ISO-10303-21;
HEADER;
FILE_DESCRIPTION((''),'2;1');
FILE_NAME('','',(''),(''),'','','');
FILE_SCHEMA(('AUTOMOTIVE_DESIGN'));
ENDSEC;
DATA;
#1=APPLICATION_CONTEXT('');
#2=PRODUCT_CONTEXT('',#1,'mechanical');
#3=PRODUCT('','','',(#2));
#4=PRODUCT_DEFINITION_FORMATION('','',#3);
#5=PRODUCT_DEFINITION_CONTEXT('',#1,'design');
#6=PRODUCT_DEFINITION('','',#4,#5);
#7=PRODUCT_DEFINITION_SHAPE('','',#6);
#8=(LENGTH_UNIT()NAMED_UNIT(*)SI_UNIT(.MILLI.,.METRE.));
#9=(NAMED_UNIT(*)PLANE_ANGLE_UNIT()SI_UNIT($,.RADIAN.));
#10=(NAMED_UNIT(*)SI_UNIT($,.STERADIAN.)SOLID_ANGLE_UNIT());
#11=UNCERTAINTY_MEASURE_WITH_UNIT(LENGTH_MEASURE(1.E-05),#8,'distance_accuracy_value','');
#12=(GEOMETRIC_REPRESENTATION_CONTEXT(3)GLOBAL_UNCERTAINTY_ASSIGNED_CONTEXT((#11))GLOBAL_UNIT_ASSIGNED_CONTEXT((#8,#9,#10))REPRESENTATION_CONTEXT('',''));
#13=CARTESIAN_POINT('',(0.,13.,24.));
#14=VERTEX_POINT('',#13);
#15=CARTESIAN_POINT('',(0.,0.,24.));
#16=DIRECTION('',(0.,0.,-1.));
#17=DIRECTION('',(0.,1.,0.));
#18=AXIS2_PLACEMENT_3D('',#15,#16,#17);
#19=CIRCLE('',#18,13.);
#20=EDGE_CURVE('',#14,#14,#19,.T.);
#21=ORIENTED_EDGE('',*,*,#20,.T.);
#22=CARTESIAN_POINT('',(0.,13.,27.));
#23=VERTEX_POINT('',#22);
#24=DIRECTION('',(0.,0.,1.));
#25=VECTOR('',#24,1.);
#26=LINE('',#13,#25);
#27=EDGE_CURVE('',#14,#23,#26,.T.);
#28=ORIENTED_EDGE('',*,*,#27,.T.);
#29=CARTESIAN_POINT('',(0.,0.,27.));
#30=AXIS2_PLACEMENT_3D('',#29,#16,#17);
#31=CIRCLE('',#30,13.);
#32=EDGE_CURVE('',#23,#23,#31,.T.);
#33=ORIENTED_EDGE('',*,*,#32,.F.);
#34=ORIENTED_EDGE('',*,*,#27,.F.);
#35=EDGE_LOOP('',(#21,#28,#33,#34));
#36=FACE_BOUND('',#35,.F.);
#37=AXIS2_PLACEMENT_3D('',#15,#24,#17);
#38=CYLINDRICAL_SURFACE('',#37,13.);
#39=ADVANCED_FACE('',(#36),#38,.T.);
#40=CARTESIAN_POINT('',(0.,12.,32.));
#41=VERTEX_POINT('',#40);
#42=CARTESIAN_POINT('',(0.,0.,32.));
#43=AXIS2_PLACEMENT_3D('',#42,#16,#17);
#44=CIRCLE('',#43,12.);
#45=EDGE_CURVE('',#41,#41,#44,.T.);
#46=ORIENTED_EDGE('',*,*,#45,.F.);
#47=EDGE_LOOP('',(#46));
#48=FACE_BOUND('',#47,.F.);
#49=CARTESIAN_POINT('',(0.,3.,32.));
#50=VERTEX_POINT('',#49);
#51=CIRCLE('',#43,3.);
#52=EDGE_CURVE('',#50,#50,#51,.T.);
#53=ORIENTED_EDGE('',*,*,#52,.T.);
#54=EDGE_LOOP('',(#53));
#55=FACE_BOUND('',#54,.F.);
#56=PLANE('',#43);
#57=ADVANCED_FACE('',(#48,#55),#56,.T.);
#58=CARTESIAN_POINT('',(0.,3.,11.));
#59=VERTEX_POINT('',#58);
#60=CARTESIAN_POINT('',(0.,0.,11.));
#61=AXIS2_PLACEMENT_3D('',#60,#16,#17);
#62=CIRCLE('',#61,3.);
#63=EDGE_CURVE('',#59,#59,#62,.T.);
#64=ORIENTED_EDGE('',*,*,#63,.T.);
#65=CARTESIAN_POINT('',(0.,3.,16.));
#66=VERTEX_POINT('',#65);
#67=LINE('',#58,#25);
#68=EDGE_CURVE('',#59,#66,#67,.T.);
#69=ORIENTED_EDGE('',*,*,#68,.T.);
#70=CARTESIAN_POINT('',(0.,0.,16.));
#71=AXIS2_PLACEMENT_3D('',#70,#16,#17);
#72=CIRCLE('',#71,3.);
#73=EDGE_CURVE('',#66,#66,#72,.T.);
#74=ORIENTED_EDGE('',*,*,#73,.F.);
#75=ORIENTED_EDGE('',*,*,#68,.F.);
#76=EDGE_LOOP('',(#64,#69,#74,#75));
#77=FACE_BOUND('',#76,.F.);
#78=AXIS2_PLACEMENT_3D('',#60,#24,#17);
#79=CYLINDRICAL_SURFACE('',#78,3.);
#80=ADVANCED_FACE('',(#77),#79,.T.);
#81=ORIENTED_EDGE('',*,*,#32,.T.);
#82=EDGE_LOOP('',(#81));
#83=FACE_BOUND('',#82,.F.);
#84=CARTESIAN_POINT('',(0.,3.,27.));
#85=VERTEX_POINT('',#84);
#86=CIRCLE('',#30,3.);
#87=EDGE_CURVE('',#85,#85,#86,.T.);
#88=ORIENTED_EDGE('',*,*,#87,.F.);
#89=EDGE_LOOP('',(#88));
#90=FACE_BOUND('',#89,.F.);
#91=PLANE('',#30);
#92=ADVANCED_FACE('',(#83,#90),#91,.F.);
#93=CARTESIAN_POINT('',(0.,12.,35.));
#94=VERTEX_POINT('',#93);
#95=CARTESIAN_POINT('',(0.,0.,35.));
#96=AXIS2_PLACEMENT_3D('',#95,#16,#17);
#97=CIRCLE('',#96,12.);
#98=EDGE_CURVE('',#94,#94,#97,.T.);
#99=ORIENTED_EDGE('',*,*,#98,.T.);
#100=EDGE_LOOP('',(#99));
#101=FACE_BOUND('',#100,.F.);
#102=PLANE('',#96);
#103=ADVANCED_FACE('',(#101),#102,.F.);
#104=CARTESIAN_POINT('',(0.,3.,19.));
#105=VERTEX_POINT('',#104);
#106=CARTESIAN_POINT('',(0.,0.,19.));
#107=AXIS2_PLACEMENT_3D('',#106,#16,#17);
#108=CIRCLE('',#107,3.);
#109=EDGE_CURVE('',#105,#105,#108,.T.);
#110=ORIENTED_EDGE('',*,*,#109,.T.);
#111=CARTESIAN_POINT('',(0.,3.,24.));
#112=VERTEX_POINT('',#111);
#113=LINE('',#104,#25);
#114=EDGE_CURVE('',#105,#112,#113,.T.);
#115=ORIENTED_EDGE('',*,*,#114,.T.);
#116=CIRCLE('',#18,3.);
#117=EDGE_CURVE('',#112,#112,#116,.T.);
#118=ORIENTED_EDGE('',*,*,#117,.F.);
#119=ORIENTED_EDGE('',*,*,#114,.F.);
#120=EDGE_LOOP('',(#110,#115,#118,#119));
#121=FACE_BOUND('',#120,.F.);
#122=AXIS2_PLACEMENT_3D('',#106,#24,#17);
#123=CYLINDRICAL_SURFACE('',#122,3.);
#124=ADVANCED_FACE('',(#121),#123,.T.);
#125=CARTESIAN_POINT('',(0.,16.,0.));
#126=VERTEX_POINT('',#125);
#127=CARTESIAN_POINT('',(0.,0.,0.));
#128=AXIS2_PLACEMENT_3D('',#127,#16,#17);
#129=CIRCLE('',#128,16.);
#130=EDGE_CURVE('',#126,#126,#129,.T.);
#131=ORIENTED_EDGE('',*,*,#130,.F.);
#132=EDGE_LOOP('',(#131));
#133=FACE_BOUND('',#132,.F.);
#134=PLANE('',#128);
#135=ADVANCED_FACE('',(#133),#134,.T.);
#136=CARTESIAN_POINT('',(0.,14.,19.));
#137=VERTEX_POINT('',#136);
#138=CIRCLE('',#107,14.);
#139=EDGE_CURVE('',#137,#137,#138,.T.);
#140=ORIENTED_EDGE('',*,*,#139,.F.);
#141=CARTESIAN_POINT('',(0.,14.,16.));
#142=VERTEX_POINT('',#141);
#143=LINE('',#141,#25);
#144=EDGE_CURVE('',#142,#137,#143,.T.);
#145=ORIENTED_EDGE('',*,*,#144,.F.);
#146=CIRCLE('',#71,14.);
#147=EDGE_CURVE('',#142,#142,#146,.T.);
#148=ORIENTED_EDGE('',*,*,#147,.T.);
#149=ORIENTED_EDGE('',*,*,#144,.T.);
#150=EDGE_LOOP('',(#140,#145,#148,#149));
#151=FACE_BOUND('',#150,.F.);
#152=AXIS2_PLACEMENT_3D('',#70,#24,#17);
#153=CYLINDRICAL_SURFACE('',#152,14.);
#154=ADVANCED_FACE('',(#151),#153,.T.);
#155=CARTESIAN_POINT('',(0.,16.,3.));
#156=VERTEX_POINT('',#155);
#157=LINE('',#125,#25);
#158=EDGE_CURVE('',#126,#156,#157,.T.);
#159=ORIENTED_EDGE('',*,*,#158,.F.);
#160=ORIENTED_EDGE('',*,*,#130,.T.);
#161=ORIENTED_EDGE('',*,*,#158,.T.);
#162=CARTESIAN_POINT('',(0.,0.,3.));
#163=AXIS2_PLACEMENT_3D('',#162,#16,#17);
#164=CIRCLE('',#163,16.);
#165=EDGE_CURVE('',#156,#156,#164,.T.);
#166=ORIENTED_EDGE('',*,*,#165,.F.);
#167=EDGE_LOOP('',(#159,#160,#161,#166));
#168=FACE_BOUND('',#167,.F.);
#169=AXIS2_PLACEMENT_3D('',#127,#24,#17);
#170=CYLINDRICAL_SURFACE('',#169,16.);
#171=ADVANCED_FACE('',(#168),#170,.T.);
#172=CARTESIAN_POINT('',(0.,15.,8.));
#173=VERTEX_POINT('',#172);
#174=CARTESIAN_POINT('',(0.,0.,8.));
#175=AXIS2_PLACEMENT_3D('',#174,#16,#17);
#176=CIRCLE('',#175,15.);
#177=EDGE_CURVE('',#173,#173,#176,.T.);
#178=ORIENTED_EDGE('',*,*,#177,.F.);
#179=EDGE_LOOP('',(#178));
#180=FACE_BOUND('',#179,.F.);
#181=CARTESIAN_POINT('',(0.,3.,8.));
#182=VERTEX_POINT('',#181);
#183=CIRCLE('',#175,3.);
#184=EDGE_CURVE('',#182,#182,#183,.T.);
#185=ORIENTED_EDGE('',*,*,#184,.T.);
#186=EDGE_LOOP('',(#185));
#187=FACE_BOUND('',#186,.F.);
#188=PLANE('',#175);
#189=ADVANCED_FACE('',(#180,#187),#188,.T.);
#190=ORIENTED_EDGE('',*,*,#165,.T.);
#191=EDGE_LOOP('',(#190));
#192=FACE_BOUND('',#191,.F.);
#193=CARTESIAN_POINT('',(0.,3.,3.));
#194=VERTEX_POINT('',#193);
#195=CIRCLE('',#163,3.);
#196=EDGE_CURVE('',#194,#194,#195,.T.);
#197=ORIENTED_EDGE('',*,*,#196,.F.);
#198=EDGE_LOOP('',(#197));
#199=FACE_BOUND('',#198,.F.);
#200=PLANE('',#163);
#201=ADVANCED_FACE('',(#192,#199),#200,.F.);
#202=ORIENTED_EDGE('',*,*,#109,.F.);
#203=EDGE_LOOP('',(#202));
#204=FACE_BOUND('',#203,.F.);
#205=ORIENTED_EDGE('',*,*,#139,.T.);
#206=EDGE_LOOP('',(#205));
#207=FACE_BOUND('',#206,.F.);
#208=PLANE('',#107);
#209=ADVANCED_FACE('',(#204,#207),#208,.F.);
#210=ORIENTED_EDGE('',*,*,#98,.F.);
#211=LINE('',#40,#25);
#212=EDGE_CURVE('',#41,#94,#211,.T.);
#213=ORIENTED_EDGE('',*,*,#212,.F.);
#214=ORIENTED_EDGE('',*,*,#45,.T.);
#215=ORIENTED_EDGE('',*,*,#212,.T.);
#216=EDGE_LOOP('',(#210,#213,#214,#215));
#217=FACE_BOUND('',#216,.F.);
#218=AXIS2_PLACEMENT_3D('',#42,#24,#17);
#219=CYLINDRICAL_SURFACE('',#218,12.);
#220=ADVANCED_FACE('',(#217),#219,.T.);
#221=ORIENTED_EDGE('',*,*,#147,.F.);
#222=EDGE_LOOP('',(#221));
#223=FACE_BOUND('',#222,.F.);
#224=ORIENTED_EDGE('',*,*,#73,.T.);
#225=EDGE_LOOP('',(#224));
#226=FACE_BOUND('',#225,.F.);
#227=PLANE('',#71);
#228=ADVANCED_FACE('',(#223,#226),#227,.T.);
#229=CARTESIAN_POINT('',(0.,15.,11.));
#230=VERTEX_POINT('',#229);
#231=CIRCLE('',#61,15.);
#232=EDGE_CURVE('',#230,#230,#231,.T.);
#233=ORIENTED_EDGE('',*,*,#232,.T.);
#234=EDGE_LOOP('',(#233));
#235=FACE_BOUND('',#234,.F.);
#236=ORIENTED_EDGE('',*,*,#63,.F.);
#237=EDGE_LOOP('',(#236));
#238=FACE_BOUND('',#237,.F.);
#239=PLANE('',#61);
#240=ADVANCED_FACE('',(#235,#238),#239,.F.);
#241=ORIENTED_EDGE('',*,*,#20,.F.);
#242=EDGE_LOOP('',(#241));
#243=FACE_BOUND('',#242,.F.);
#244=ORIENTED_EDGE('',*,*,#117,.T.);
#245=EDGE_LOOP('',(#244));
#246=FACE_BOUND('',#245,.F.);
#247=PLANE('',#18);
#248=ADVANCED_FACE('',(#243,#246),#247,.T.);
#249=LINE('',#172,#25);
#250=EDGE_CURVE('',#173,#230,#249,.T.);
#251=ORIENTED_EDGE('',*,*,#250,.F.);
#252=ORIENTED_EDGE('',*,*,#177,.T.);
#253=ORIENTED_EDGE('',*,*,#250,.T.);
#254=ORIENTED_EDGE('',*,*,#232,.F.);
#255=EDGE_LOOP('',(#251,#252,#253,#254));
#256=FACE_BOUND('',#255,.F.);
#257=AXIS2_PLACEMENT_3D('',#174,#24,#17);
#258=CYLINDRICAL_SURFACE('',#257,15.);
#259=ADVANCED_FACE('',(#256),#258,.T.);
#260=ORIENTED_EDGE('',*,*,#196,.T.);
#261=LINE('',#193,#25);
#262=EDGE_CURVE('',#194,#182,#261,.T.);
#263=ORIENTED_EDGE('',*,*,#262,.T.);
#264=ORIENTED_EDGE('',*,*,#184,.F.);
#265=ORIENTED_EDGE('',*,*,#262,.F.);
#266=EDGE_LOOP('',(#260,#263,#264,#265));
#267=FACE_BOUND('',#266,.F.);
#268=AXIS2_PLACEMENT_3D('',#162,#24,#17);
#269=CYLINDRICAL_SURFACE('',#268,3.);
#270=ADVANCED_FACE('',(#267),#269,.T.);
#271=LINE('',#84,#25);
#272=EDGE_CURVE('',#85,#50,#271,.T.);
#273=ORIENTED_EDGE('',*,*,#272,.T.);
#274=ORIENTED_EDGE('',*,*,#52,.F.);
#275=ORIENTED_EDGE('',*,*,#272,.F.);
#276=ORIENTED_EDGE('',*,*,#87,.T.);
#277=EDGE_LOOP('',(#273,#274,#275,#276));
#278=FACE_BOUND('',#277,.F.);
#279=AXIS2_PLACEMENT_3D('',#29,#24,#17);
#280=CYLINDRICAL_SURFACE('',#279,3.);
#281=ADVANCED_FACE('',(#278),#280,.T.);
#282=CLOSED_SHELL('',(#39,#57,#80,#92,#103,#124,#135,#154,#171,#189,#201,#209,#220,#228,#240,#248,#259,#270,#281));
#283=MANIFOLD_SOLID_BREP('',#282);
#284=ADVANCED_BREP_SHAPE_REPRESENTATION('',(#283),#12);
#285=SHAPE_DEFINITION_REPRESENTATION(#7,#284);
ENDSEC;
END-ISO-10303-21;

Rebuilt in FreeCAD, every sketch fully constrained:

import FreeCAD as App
import Part
import Sketcher

doc = App.newDocument("Part")
body = doc.addObject("PartDesign::Body", "Body")

# Sketch on YZ plane
sketch1 = body.newObject("Sketcher::SketchObject", "Sketch")
sketch1.AttachmentSupport = (doc.getObject("YZ_Plane"), [""])
sketch1.MapMode = "FlatFace"
sketch1.addGeometry(Part.LineSegment(App.Vector(0, 0, 0), App.Vector(16, 0, 0)), False)
sketch1.addGeometry(Part.LineSegment(App.Vector(16, 0, 0), App.Vector(16, 3, 0)), False)
sketch1.addGeometry(Part.LineSegment(App.Vector(16, 3, 0), App.Vector(3, 3, 0)), False)
sketch1.addGeometry(Part.LineSegment(App.Vector(3, 3, 0), App.Vector(3, 8, 0)), False)
sketch1.addGeometry(Part.LineSegment(App.Vector(3, 8, 0), App.Vector(15, 8, 0)), False)
sketch1.addGeometry(Part.LineSegment(App.Vector(15, 8, 0), App.Vector(15, 11, 0)), False)
sketch1.addGeometry(Part.LineSegment(App.Vector(15, 11, 0), App.Vector(3, 11, 0)), False)
sketch1.addGeometry(Part.LineSegment(App.Vector(3, 11, 0), App.Vector(3, 16, 0)), False)
sketch1.addGeometry(Part.LineSegment(App.Vector(3, 16, 0), App.Vector(14, 16, 0)), False)
sketch1.addGeometry(Part.LineSegment(App.Vector(14, 16, 0), App.Vector(14, 19, 0)), False)
sketch1.addGeometry(Part.LineSegment(App.Vector(14, 19, 0), App.Vector(3, 19, 0)), False)
sketch1.addGeometry(Part.LineSegment(App.Vector(3, 19, 0), App.Vector(3, 24, 0)), False)
sketch1.addGeometry(Part.LineSegment(App.Vector(3, 24, 0), App.Vector(13, 24, 0)), False)
sketch1.addGeometry(Part.LineSegment(App.Vector(13, 24, 0), App.Vector(13, 27, 0)), False)
sketch1.addGeometry(Part.LineSegment(App.Vector(13, 27, 0), App.Vector(3, 27, 0)), False)
sketch1.addGeometry(Part.LineSegment(App.Vector(3, 27, 0), App.Vector(3, 32, 0)), False)
sketch1.addGeometry(Part.LineSegment(App.Vector(3, 32, 0), App.Vector(12, 32, 0)), False)
sketch1.addGeometry(Part.LineSegment(App.Vector(12, 32, 0), App.Vector(12, 35, 0)), False)
sketch1.addGeometry(Part.LineSegment(App.Vector(12, 35, 0), App.Vector(0, 35, 0)), False)
sketch1.addGeometry(Part.LineSegment(App.Vector(0, 35, 0), App.Vector(0, 0, 0)), False)
sketch1.addConstraint(Sketcher.Constraint("Coincident", 0, 2, 1, 1))
sketch1.addConstraint(Sketcher.Constraint("Coincident", 1, 2, 2, 1))
sketch1.addConstraint(Sketcher.Constraint("Coincident", 2, 2, 3, 1))
sketch1.addConstraint(Sketcher.Constraint("Coincident", 3, 2, 4, 1))
sketch1.addConstraint(Sketcher.Constraint("Coincident", 4, 2, 5, 1))
sketch1.addConstraint(Sketcher.Constraint("Coincident", 5, 2, 6, 1))
sketch1.addConstraint(Sketcher.Constraint("Coincident", 6, 2, 7, 1))
sketch1.addConstraint(Sketcher.Constraint("Coincident", 7, 2, 8, 1))
sketch1.addConstraint(Sketcher.Constraint("Coincident", 8, 2, 9, 1))
sketch1.addConstraint(Sketcher.Constraint("Coincident", 9, 2, 10, 1))
sketch1.addConstraint(Sketcher.Constraint("Coincident", 10, 2, 11, 1))
sketch1.addConstraint(Sketcher.Constraint("Coincident", 11, 2, 12, 1))
sketch1.addConstraint(Sketcher.Constraint("Coincident", 12, 2, 13, 1))
sketch1.addConstraint(Sketcher.Constraint("Coincident", 13, 2, 14, 1))
sketch1.addConstraint(Sketcher.Constraint("Coincident", 14, 2, 15, 1))
sketch1.addConstraint(Sketcher.Constraint("Coincident", 15, 2, 16, 1))
sketch1.addConstraint(Sketcher.Constraint("Coincident", 16, 2, 17, 1))
sketch1.addConstraint(Sketcher.Constraint("Coincident", 17, 2, 18, 1))
sketch1.addConstraint(Sketcher.Constraint("Coincident", 18, 2, 19, 1))
sketch1.addConstraint(Sketcher.Constraint("Coincident", 19, 2, 0, 1))
sketch1.addConstraint(Sketcher.Constraint("Horizontal", 0))
sketch1.addConstraint(Sketcher.Constraint("Vertical", 1))
sketch1.addConstraint(Sketcher.Constraint("Horizontal", 2))
sketch1.addConstraint(Sketcher.Constraint("Vertical", 3))
sketch1.addConstraint(Sketcher.Constraint("Horizontal", 4))
sketch1.addConstraint(Sketcher.Constraint("Vertical", 5))
sketch1.addConstraint(Sketcher.Constraint("Horizontal", 6))
sketch1.addConstraint(Sketcher.Constraint("Vertical", 7))
sketch1.addConstraint(Sketcher.Constraint("Horizontal", 8))
sketch1.addConstraint(Sketcher.Constraint("Vertical", 9))
sketch1.addConstraint(Sketcher.Constraint("Horizontal", 10))
sketch1.addConstraint(Sketcher.Constraint("Vertical", 11))
sketch1.addConstraint(Sketcher.Constraint("Horizontal", 12))
sketch1.addConstraint(Sketcher.Constraint("Vertical", 13))
sketch1.addConstraint(Sketcher.Constraint("Horizontal", 14))
sketch1.addConstraint(Sketcher.Constraint("Vertical", 15))
sketch1.addConstraint(Sketcher.Constraint("Horizontal", 16))
sketch1.addConstraint(Sketcher.Constraint("Vertical", 17))
sketch1.addConstraint(Sketcher.Constraint("Horizontal", 18))
sketch1.addConstraint(Sketcher.Constraint("Vertical", 19))
sketch1.addConstraint(Sketcher.Constraint("Coincident", 19, 2, -1, 1))
sketch1.addConstraint(Sketcher.Constraint("Vertical", 3, 2, 6, 2))
sketch1.addConstraint(Sketcher.Constraint("Vertical", 7, 2, 10, 2))
sketch1.addConstraint(Sketcher.Constraint("Vertical", 11, 2, 14, 2))
sketch1.addConstraint(Sketcher.Constraint("Equal", 6, 18))
sketch1.addConstraint(Sketcher.Constraint("Equal", 1, 5))
sketch1.addConstraint(Sketcher.Constraint("Equal", 3, 7))
sketch1.addConstraint(Sketcher.Constraint("Equal", 5, 9))
sketch1.addConstraint(Sketcher.Constraint("Equal", 7, 11))
sketch1.addConstraint(Sketcher.Constraint("Equal", 9, 13))
sketch1.addConstraint(Sketcher.Constraint("Equal", 11, 15))
sketch1.addConstraint(Sketcher.Constraint("Equal", 13, 17))
sketch1.addConstraint(Sketcher.Constraint("DistanceX", 0, 1, 0, 2, 16.0))
sketch1.addConstraint(Sketcher.Constraint("DistanceX", 2, 2, 2, 1, 13.0))
sketch1.addConstraint(Sketcher.Constraint("DistanceX", 4, 1, 4, 2, 12.0))
sketch1.addConstraint(Sketcher.Constraint("DistanceX", 8, 1, 8, 2, 11.0))
sketch1.addConstraint(Sketcher.Constraint("DistanceX", 12, 1, 12, 2, 10.0))
sketch1.addConstraint(Sketcher.Constraint("DistanceY", 1, 1, 1, 2, 3.0))
sketch1.addConstraint(Sketcher.Constraint("DistanceY", 3, 1, 3, 2, 5.0))
revolution = body.newObject("PartDesign::Revolution", "Revolution")
revolution.Profile = sketch1
revolution.ReferenceAxis = (sketch1, ["V_Axis"])
revolution.Angle = 360

doc.recompute()
